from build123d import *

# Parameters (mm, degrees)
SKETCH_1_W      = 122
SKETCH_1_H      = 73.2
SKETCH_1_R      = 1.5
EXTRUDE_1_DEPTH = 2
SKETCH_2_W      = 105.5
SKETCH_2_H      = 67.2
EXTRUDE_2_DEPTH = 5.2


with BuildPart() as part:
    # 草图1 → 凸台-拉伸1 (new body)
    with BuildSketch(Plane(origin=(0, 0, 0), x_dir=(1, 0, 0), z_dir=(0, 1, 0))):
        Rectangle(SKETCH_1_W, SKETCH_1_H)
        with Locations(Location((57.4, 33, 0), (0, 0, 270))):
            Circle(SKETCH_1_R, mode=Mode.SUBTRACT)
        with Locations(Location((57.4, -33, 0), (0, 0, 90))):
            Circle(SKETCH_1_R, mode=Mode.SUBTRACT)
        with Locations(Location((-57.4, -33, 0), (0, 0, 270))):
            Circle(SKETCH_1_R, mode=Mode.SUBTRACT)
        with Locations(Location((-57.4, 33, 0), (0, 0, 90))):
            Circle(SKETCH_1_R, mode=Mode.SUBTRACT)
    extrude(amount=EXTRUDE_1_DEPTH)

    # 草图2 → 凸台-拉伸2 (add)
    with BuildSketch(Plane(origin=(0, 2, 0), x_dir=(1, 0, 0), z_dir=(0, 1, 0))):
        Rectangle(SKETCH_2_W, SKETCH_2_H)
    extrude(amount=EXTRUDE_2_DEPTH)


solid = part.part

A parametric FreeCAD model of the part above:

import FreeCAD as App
import Part
import Sketcher
Q = App.Units.Quantity


def add_polygon(sketch, points):
    """Adds a closed chain of lines whose ends are joined by coincident constraints."""
    first, n = sketch.GeometryCount, len(points)
    for a, b in zip(points, points[1:] + points[:1]):
        sketch.addGeometry(Part.LineSegment(App.Vector(*a, 0), App.Vector(*b, 0)), False)
    for i in range(n):
        sketch.addConstraint(Sketcher.Constraint("Coincident", first + i, 2, first + (i + 1) % n, 1))

doc = App.newDocument("Part")
params = doc.addObject("Spreadsheet::Sheet", "Params")
for row, (alias, value) in enumerate([
    ("sketch1_diameter", "3 mm"),
    ("sketch1_width", "122 mm"),
    ("sketch1_height", "73.2 mm"),
    ("pad1_length", "2 mm"),
    ("sketch2_width", "105.5 mm"),
    ("sketch2_height", "67.2 mm"),
    ("pad2_length", "5.2 mm"),
], start=1):
    params.set(f"A{row}", alias)
    params.set(f"B{row}", "=" + value)
    params.setAlias(f"B{row}", alias)

body = doc.addObject("PartDesign::Body", "Body")

sketch1 = body.newObject("Sketcher::SketchObject", "Sketch")
sketch1.AttachmentSupport = (doc.getObject("XZ_Plane"), [""])
sketch1.MapMode = "FlatFace"
add_polygon(sketch1, [(-61, -36.6), (-61, 36.6), (61, 36.6), (61, -36.6)])
sketch1.addGeometry(Part.Circle(App.Vector(-57.4, 33, 0), App.Vector(0, 0, 1), 1.5), False)
sketch1.addGeometry(Part.Circle(App.Vector(57.4, 33, 0), App.Vector(0, 0, 1), 1.5), False)
sketch1.addGeometry(Part.Circle(App.Vector(-57.4, -33, 0), App.Vector(0, 0, 1), 1.5), False)
sketch1.addGeometry(Part.Circle(App.Vector(57.4, -33, 0), App.Vector(0, 0, 1), 1.5), False)
sketch1.addConstraint([
    Sketcher.Constraint("Vertical", 0),
    Sketcher.Constraint("Horizontal", 1),
    Sketcher.Constraint("Vertical", 2),
    Sketcher.Constraint("Horizontal", 3),
    Sketcher.Constraint("Equal", 4, 5),
    Sketcher.Constraint("Equal", 5, 6),
    Sketcher.Constraint("Equal", 6, 7),
    Sketcher.Constraint("Symmetric", 5, 3, 6, 3, -1, 1),
    Sketcher.Constraint("Symmetric", 4, 3, 7, 3, -1, 1),
    Sketcher.Constraint("Symmetric", 0, 2, 2, 2, -1, 1),
    Sketcher.Constraint("Symmetric", 4, 3, 5, 3, -2),
    Sketcher.Constraint("Diameter", 4, Q("3 mm")),
    Sketcher.Constraint("DistanceX", 1, 1, 1, 2, Q("122 mm")),
    Sketcher.Constraint("DistanceY", 0, 1, 0, 2, Q("73.2 mm")),
    Sketcher.Constraint("DistanceY", -1, 1, 4, 3, Q("33 mm")),
    Sketcher.Constraint("DistanceX", 4, 3, -1, 1, Q("57.4 mm")),
])
sketch1.setExpression("Constraints[15]", "Params.sketch1_diameter")
sketch1.setExpression("Constraints[16]", "Params.sketch1_width")
sketch1.setExpression("Constraints[17]", "Params.sketch1_height")
pad1 = body.newObject("PartDesign::Pad", "Pad")
pad1.Profile = sketch1
pad1.setExpression("Length", "Params.pad1_length")
pad1.Reversed = True

sketch2 = body.newObject("Sketcher::SketchObject", "Sketch001")
sketch2.AttachmentSupport = (doc.getObject("XZ_Plane"), [""])
sketch2.MapMode = "FlatFace"
sketch2.AttachmentOffset = App.Placement(App.Vector(0, 0, -2), App.Rotation())
add_polygon(sketch2, [(-53, -34), (-53, 34), (53, 34), (53, -34)])
sketch2.addConstraint([
    Sketcher.Constraint("Vertical", 0),
    Sketcher.Constraint("Horizontal", 1),
    Sketcher.Constraint("Vertical", 2),
    Sketcher.Constraint("Horizontal", 3),
    Sketcher.Constraint("Symmetric", 0, 2, 2, 2, -1, 1),
    Sketcher.Constraint("DistanceX", 1, 1, 1, 2, Q("105.5 mm")),
    Sketcher.Constraint("DistanceY", 0, 1, 0, 2, Q("67.2 mm")),
])
sketch2.setExpression("Constraints[9]", "Params.sketch2_width")
sketch2.setExpression("Constraints[10]", "Params.sketch2_height")
pad2 = body.newObject("PartDesign::Pad", "Pad001")
pad2.Profile = sketch2
pad2.setExpression("Length", "Params.pad2_length")
pad2.Reversed = True

doc.recompute()
